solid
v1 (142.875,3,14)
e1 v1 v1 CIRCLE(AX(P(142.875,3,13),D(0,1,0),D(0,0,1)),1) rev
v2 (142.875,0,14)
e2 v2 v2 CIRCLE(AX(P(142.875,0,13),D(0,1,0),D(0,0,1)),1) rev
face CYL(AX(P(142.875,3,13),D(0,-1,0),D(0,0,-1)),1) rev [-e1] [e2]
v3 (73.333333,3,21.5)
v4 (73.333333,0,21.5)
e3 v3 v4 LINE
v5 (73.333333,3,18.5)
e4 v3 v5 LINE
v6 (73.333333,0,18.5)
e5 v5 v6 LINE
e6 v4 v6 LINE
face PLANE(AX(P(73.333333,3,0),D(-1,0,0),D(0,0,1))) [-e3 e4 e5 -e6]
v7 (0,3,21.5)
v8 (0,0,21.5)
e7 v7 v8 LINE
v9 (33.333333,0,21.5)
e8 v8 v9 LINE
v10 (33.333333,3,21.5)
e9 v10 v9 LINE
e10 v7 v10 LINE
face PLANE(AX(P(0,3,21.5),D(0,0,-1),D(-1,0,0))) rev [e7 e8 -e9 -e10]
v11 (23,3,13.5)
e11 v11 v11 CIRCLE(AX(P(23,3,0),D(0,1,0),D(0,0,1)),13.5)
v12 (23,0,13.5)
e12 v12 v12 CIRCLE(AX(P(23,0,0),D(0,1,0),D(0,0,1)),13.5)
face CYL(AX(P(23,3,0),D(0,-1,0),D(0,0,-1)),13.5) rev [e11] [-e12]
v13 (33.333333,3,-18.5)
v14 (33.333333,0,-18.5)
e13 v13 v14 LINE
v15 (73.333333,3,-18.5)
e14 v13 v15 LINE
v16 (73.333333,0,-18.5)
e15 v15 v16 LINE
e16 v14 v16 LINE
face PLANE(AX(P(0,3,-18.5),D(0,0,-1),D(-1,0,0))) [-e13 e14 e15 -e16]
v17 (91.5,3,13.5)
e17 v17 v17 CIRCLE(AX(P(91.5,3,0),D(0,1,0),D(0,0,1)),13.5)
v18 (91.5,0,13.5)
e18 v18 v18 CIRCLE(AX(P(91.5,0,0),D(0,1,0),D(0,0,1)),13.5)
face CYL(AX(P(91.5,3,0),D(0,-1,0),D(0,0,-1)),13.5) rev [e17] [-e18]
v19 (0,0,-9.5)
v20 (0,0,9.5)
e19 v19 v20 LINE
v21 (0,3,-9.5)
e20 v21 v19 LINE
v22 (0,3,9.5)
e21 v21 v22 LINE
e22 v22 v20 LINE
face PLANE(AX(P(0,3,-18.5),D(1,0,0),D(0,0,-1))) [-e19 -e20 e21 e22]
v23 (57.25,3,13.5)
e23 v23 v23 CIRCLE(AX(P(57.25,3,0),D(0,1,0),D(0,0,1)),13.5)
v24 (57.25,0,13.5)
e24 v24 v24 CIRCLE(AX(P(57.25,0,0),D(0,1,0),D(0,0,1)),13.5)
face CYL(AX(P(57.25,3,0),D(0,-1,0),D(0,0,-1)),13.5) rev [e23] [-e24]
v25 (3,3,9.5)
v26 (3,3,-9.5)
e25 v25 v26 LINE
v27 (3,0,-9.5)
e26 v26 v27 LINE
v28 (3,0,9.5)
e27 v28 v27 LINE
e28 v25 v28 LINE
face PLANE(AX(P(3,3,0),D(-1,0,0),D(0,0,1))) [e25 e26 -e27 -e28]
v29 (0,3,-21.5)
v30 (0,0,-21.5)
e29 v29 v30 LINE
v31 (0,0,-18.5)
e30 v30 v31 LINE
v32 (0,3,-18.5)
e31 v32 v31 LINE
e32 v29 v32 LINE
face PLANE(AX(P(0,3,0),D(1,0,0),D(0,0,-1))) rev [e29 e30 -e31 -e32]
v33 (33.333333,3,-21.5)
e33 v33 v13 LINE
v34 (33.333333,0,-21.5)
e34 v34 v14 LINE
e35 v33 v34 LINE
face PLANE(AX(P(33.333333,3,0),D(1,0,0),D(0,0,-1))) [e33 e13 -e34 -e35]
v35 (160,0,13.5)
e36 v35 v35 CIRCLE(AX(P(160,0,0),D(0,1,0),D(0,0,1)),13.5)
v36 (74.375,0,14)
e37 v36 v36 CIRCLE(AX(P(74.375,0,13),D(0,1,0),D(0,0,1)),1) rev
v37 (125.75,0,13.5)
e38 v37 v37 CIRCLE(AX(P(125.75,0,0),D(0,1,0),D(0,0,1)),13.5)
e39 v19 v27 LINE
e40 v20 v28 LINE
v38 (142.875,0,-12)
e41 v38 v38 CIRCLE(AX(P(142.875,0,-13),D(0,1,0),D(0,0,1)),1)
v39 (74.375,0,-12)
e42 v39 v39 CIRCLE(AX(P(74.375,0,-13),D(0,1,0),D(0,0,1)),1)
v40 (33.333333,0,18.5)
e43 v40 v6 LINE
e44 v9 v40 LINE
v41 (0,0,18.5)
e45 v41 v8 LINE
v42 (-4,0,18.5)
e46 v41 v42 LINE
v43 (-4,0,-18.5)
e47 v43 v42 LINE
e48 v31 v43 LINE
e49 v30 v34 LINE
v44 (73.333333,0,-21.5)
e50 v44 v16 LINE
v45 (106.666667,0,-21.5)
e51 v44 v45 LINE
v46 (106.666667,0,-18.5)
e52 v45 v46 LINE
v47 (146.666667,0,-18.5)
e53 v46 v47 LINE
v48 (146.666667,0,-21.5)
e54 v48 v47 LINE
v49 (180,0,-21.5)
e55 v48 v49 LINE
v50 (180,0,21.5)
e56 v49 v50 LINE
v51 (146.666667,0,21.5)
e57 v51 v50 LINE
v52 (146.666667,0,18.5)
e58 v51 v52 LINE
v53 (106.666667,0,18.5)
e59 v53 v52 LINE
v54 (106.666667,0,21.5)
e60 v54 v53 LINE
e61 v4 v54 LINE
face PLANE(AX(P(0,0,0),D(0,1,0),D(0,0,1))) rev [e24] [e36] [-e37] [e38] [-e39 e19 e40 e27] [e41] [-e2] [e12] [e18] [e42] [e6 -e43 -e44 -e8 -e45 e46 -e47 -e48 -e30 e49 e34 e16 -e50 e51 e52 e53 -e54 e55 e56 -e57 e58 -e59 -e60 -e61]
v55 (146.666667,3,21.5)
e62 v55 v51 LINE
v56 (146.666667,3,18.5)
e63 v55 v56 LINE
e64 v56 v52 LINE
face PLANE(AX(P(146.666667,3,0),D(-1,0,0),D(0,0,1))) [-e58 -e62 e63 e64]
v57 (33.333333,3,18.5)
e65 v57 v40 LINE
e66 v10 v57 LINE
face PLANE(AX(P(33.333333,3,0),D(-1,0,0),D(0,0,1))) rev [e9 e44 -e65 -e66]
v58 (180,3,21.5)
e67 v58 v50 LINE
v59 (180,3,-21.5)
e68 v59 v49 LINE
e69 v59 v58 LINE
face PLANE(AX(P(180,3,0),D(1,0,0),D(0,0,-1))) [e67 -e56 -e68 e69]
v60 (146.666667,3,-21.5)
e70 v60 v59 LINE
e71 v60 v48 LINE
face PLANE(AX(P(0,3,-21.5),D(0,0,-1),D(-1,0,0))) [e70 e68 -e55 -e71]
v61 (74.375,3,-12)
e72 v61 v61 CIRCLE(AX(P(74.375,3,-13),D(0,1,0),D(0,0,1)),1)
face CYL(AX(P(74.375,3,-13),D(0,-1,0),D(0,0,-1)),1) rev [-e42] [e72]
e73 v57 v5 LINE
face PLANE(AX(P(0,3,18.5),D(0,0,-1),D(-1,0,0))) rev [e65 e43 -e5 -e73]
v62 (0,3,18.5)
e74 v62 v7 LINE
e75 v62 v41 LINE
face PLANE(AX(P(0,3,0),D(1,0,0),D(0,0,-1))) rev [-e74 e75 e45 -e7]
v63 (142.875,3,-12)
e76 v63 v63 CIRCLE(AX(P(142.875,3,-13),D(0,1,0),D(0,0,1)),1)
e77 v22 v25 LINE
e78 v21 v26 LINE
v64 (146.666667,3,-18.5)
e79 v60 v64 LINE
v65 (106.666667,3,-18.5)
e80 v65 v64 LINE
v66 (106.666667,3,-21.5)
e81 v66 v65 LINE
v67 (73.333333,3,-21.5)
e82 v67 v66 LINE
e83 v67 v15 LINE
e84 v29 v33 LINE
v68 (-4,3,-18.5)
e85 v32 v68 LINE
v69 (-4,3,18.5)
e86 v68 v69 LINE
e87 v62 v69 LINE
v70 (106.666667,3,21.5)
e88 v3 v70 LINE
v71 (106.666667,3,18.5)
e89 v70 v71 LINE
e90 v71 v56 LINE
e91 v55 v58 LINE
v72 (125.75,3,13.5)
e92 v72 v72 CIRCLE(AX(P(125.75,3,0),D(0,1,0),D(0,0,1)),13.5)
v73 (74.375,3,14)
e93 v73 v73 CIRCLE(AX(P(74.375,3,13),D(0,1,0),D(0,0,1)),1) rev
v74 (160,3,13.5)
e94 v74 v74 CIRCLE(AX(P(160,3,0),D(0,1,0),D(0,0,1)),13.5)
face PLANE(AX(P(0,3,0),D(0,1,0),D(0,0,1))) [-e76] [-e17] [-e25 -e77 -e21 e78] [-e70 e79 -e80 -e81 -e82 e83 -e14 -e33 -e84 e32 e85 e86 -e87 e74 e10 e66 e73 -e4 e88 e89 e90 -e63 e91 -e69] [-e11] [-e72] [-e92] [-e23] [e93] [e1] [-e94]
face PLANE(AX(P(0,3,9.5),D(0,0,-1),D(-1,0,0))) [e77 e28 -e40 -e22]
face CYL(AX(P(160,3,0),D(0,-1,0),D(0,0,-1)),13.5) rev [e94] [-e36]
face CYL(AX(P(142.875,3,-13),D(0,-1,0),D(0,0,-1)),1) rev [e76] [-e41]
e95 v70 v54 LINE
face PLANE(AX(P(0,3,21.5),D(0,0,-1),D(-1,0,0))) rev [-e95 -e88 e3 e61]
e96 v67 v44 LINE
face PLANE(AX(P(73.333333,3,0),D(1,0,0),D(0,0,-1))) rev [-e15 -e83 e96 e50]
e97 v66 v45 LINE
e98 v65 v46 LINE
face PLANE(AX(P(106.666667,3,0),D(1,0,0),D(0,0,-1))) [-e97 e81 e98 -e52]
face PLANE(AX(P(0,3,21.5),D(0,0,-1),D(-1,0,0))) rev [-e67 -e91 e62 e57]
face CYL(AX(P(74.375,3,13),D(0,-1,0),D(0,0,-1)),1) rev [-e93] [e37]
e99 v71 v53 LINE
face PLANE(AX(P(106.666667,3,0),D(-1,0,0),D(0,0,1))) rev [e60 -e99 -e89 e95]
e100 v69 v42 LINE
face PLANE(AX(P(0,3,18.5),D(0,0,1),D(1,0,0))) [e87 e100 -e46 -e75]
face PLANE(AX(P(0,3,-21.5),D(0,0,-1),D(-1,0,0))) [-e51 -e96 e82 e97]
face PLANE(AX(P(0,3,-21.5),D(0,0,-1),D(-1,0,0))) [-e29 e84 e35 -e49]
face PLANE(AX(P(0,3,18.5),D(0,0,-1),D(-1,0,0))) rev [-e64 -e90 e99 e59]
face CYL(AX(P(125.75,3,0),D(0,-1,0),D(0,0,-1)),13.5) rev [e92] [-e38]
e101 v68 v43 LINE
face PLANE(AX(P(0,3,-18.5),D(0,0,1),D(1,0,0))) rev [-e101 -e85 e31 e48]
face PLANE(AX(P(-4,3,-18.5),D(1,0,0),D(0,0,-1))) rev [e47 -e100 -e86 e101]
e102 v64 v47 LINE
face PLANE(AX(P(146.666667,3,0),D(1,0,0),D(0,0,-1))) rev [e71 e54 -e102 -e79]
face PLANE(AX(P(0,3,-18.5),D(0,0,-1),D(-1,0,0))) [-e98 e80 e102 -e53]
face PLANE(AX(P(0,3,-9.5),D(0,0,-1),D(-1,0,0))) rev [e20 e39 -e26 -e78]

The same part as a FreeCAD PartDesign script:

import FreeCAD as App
import Part
import Sketcher
from FreeCAD import Vector
Q = App.Units.Quantity

doc = App.newDocument("Part")
body = doc.addObject("PartDesign::Body", "Body")

# Sketch on XZ plane
sketch1 = doc.addObject("Sketcher::SketchObject", "Sketch")
body.addObject(sketch1)
sketch1.AttachmentSupport = (doc.XZ_Plane, [""])
sketch1.MapMode = "FlatFace"
sketch1.addGeometry([
    Part.LineSegment(Vector(33.3, -21.5, 0), Vector(0, -21.5, 0)),  # 0
    Part.LineSegment(Vector(0, -21.5, 0), Vector(0, -18.5, 0)),  # 1
    Part.LineSegment(Vector(0, -18.5, 0), Vector(-4, -18.5, 0)),  # 2
    Part.LineSegment(Vector(-4, -18.5, 0), Vector(-4, 18.5, 0)),  # 3
    Part.LineSegment(Vector(-4, 18.5, 0), Vector(0, 18.5, 0)),  # 4
    Part.LineSegment(Vector(0, 18.5, 0), Vector(0, 21.5, 0)),  # 5
    Part.LineSegment(Vector(0, 21.5, 0), Vector(33.3, 21.5, 0)),  # 6
    Part.LineSegment(Vector(33.3, 21.5, 0), Vector(33.3, 18.5, 0)),  # 7
    Part.LineSegment(Vector(33.3, 18.5, 0), Vector(73.3, 18.5, 0)),  # 8
    Part.LineSegment(Vector(73.3, 18.5, 0), Vector(73.3, 21.5, 0)),  # 9
    Part.LineSegment(Vector(73.3, 21.5, 0), Vector(106.7, 21.5, 0)),  # 10
    Part.LineSegment(Vector(106.7, 21.5, 0), Vector(106.7, 18.5, 0)),  # 11
    Part.LineSegment(Vector(106.7, 18.5, 0), Vector(146.7, 18.5, 0)),  # 12
    Part.LineSegment(Vector(146.7, 18.5, 0), Vector(146.7, 21.5, 0)),  # 13
    Part.LineSegment(Vector(146.7, 21.5, 0), Vector(180, 21.5, 0)),  # 14
    Part.LineSegment(Vector(180, 21.5, 0), Vector(180, -21.5, 0)),  # 15
    Part.LineSegment(Vector(180, -21.5, 0), Vector(146.7, -21.5, 0)),  # 16
    Part.LineSegment(Vector(146.7, -21.5, 0), Vector(146.7, -18.5, 0)),  # 17
    Part.LineSegment(Vector(146.7, -18.5, 0), Vector(106.7, -18.5, 0)),  # 18
    Part.LineSegment(Vector(106.7, -18.5, 0), Vector(106.7, -21.5, 0)),  # 19
    Part.LineSegment(Vector(106.7, -21.5, 0), Vector(73.3, -21.5, 0)),  # 20
    Part.LineSegment(Vector(73.3, -21.5, 0), Vector(73.3, -18.5, 0)),  # 21
    Part.LineSegment(Vector(73.3, -18.5, 0), Vector(33.3, -18.5, 0)),  # 22
    Part.LineSegment(Vector(33.3, -18.5, 0), Vector(33.3, -21.5, 0)),  # 23
    Part.Circle(Vector(74.4, 13, 0), Vector(0, 0, 1), 1),  # 24
    Part.Circle(Vector(142.9, 13, 0), Vector(0, 0, 1), 1),  # 25
    Part.LineSegment(Vector(3, 9.5, 0), Vector(0, 9.5, 0)),  # 26
    Part.LineSegment(Vector(0, 9.5, 0), Vector(0, -9.5, 0)),  # 27
    Part.LineSegment(Vector(0, -9.5, 0), Vector(3, -9.5, 0)),  # 28
    Part.LineSegment(Vector(3, -9.5, 0), Vector(3, 9.5, 0)),  # 29
    Part.Circle(Vector(23, 0, 0), Vector(0, 0, 1), 13.5),  # 30
    Part.Circle(Vector(57.2, 0, 0), Vector(0, 0, 1), 13.5),  # 31
    Part.Circle(Vector(74.4, -13, 0), Vector(0, 0, 1), 1),  # 32
    Part.Circle(Vector(91.5, 0, 0), Vector(0, 0, 1), 13.5),  # 33
    Part.Circle(Vector(125.8, 0, 0), Vector(0, 0, 1), 13.5),  # 34
    Part.Circle(Vector(160, 0, 0), Vector(0, 0, 1), 13.5),  # 35
    Part.Circle(Vector(142.9, -13, 0), Vector(0, 0, 1), 1),  # 36
], False)
sketch1.addConstraint([
    Sketcher.Constraint("Coincident", 0, 2, 1, 1),
    Sketcher.Constraint("Coincident", 1, 2, 2, 1),
    Sketcher.Constraint("Coincident", 2, 2, 3, 1),
    Sketcher.Constraint("Coincident", 3, 2, 4, 1),
    Sketcher.Constraint("Coincident", 4, 2, 5, 1),
    Sketcher.Constraint("Coincident", 5, 2, 6, 1),
    Sketcher.Constraint("Coincident", 6, 2, 7, 1),
    Sketcher.Constraint("Coincident", 7, 2, 8, 1),
    Sketcher.Constraint("Coincident", 8, 2, 9, 1),
    Sketcher.Constraint("Coincident", 9, 2, 10, 1),
    Sketcher.Constraint("Coincident", 10, 2, 11, 1),
    Sketcher.Constraint("Coincident", 11, 2, 12, 1),
    Sketcher.Constraint("Coincident", 12, 2, 13, 1),
    Sketcher.Constraint("Coincident", 13, 2, 14, 1),
    Sketcher.Constraint("Coincident", 14, 2, 15, 1),
    Sketcher.Constraint("Coincident", 15, 2, 16, 1),
    Sketcher.Constraint("Coincident", 16, 2, 17, 1),
    Sketcher.Constraint("Coincident", 17, 2, 18, 1),
    Sketcher.Constraint("Coincident", 18, 2, 19, 1),
    Sketcher.Constraint("Coincident", 19, 2, 20, 1),
    Sketcher.Constraint("Coincident", 20, 2, 21, 1),
    Sketcher.Constraint("Coincident", 21, 2, 22, 1),
    Sketcher.Constraint("Coincident", 22, 2, 23, 1),
    Sketcher.Constraint("Coincident", 23, 2, 0, 1),
    Sketcher.Constraint("Coincident", 26, 2, 27, 1),
    Sketcher.Constraint("Coincident", 27, 2, 28, 1),
    Sketcher.Constraint("Coincident", 28, 2, 29, 1),
    Sketcher.Constraint("Coincident", 29, 2, 26, 1),
    Sketcher.Constraint("Horizontal", 0),
    Sketcher.Constraint("Vertical", 1),
    Sketcher.Constraint("Horizontal", 2),
    Sketcher.Constraint("Vertical", 3),
    Sketcher.Constraint("Horizontal", 4),
    Sketcher.Constraint("Vertical", 5),
    Sketcher.Constraint("Horizontal", 6),
    Sketcher.Constraint("Vertical", 7),
    Sketcher.Constraint("Horizontal", 8),
    Sketcher.Constraint("Vertical", 9),
    Sketcher.Constraint("Horizontal", 10),
    Sketcher.Constraint("Vertical", 11),
    Sketcher.Constraint("Horizontal", 12),
    Sketcher.Constraint("Vertical", 13),
    Sketcher.Constraint("Horizontal", 14),
    Sketcher.Constraint("Vertical", 15),
    Sketcher.Constraint("Horizontal", 16),
    Sketcher.Constraint("Vertical", 17),
    Sketcher.Constraint("Horizontal", 18),
    Sketcher.Constraint("Vertical", 19),
    Sketcher.Constraint("Horizontal", 20),
    Sketcher.Constraint("Vertical", 21),
    Sketcher.Constraint("Horizontal", 22),
    Sketcher.Constraint("Vertical", 23),
    Sketcher.Constraint("Horizontal", 26),
    Sketcher.Constraint("Vertical", 27),
    Sketcher.Constraint("Horizontal", 28),
    Sketcher.Constraint("Vertical", 29),
    Sketcher.Constraint("Equal", 24, 25),
    Sketcher.Constraint("Equal", 30, 31),
    Sketcher.Constraint("Equal", 25, 32),
    Sketcher.Constraint("Equal", 31, 33),
    Sketcher.Constraint("Equal", 33, 34),
    Sketcher.Constraint("Equal", 34, 35),
    Sketcher.Constraint("Equal", 32, 36),
    Sketcher.Constraint("Symmetric", 1, 2, 4, 2, -1, 1),
    Sketcher.Constraint("Symmetric", 26, 2, 27, 2, -1, 1),
    Sketcher.Constraint("Symmetric", 24, 3, 32, 3, -1),
    Sketcher.Constraint("Symmetric", 25, 3, 36, 3, -1),
    Sketcher.Constraint("Symmetric", 0, 2, 5, 2, -1),
    Sketcher.Constraint("Symmetric", 13, 2, 16, 2, -1),
    Sketcher.Constraint("Symmetric", 11, 2, 18, 2, -1),
    Sketcher.Constraint("Symmetric", 9, 2, 20, 2, -1),
    Sketcher.Constraint("Symmetric", 7, 2, 22, 2, -1),
    Sketcher.Constraint("PointOnObject", 30, 3, -1),
    Sketcher.Constraint("PointOnObject", 31, 3, -1),
    Sketcher.Constraint("PointOnObject", 33, 3, -1),
    Sketcher.Constraint("PointOnObject", 34, 3, -1),
    Sketcher.Constraint("PointOnObject", 35, 3, -1),
    Sketcher.Constraint("Horizontal", 24, 3, 25, 3),
    Sketcher.Constraint("Horizontal", 4, 2, 7, 2),
    Sketcher.Constraint("Horizontal", 6, 2, 9, 2),
    Sketcher.Constraint("Horizontal", 8, 2, 11, 2),
    Sketcher.Constraint("Horizontal", 10, 2, 13, 2),
    Sketcher.Constraint("Equal", 6, 10),
    Sketcher.Constraint("Equal", 8, 12),
    Sketcher.Constraint("Equal", 10, 14),
    Sketcher.Constraint("Equal", 28, 1),
    Sketcher.Constraint("Diameter", 24, Q("2 mm")),
    Sketcher.Constraint("Diameter", 30, Q("27 mm")),
    Sketcher.Constraint("DistanceX", 2, 2, 2, 1, Q("4 mm")),
    Sketcher.Constraint("DistanceX", 8, 1, 8, 2, Q("40 mm")),
    Sketcher.Constraint("DistanceX", 26, 2, 26, 1, Q("3 mm")),
    Sketcher.Constraint("DistanceY", 3, 1, 3, 2, Q("37 mm")),
    Sketcher.Constraint("DistanceY", 27, 2, 27, 1, Q("19 mm")),
    Sketcher.Constraint("DistanceY", -1, 1, 24, 3, Q("13 mm")),
    Sketcher.Constraint("DistanceX", -1, 1, 30, 3, Q("23 mm")),
    Sketcher.Constraint("DistanceX", -1, 1, 35, 3, Q("160 mm")),
    Sketcher.Constraint("DistanceX", -1, 1, 14, 2, Q("180 mm")),
    Sketcher.Constraint("DistanceX", -1, 1, 33, 3, Q("91.5 mm")),
    Sketcher.Constraint("DistanceX", 24, 3, 25, 3, Q("68.5 mm")),
    Sketcher.Constraint("DistanceX", 31, 3, 34, 3, Q("68.5 mm")),
    Sketcher.Constraint("DistanceX", -1, 1, 31, 3, Q("57.25 mm")),
    Sketcher.Constraint("DistanceX", -1, 1, 24, 3, Q("74.375 mm")),
])
pad1 = doc.addObject("PartDesign::Pad", "Pad")
body.addObject(pad1)
pad1.Profile = sketch1
pad1.Length = 3
pad1.Reversed = True

doc.recompute()
